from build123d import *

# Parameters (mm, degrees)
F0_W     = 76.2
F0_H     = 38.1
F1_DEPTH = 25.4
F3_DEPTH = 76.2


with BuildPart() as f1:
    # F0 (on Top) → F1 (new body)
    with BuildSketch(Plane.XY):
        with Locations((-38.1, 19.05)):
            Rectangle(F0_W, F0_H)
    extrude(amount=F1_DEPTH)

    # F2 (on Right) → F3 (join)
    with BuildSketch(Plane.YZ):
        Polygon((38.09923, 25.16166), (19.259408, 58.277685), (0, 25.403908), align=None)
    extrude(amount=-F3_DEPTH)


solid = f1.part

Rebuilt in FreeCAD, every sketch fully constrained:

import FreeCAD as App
import Part
import Sketcher
Q = App.Units.Quantity


def add_polygon(sketch, points):
    """Adds a closed chain of lines whose ends are joined by coincident constraints."""
    first, n = sketch.GeometryCount, len(points)
    for a, b in zip(points, points[1:] + points[:1]):
        sketch.addGeometry(Part.LineSegment(App.Vector(*a, 0), App.Vector(*b, 0)), False)
    for i in range(n):
        sketch.addConstraint(Sketcher.Constraint("Coincident", first + i, 2, first + (i + 1) % n, 1))

doc = App.newDocument("Part")
body = doc.addObject("PartDesign::Body", "Body")

# Sketch on XY plane
sketch1 = doc.addObject("Sketcher::SketchObject", "Sketch")
body.addObject(sketch1)
sketch1.AttachmentSupport = (doc.XY_Plane, [""])
sketch1.MapMode = "FlatFace"
add_polygon(sketch1, [(-76, 38), (-76, 0), (0, 0), (0, 38)])  # lines 0-3
sketch1.addConstraint(Sketcher.Constraint("Vertical", 0))
sketch1.addConstraint(Sketcher.Constraint("Horizontal", 1))
sketch1.addConstraint(Sketcher.Constraint("Vertical", 2))
sketch1.addConstraint(Sketcher.Constraint("Horizontal", 3))
sketch1.addConstraint(Sketcher.Constraint("Coincident", 1, 2, -1, 1))
sketch1.addConstraint(Sketcher.Constraint("DistanceX", 1, 1, 1, 2, Q("3 in")))
sketch1.addConstraint(Sketcher.Constraint("DistanceY", 0, 2, 0, 1, Q("1.5 in")))
pad1 = doc.addObject("PartDesign::Pad", "Pad")
body.addObject(pad1)
pad1.Profile = sketch1
pad1.Length = Q("1 in")

# Sketch on YZ plane
sketch2 = doc.addObject("Sketcher::SketchObject", "Sketch001")
body.addObject(sketch2)
sketch2.AttachmentSupport = (doc.YZ_Plane, [""])
sketch2.MapMode = "FlatFace"
add_polygon(sketch2, [(38, 25), (19, 58), (0, 25)])  # lines 0-2
sketch2.addConstraint(Sketcher.Constraint("PointOnObject", 1, 2, -2))
sketch2.addConstraint(Sketcher.Constraint("Equal", 0, 1))
sketch2.addConstraint(Sketcher.Constraint("Equal", 1, 2))
sketch2.addConstraint(Sketcher.Constraint("Distance", 0, Q("1.5 in")))
sketch2.addConstraint(Sketcher.Constraint("DistanceX", -1, 1, 0, 2, 19.259408))
sketch2.addConstraint(Sketcher.Constraint("DistanceY", -1, 1, 1, 2, 25.403908))
pad2 = doc.addObject("PartDesign::Pad", "Pad001")
body.addObject(pad2)
pad2.Profile = sketch2
pad2.Length = Q("3 in")
pad2.Reversed = True

doc.recompute()
